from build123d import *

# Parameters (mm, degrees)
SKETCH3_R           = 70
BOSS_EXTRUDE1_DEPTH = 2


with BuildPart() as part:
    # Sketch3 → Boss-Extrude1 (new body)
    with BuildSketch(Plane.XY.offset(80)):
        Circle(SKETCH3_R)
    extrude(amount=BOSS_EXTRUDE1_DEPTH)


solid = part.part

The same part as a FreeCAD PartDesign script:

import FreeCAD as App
import Part
import Sketcher

doc = App.newDocument("Part")
body = doc.addObject("PartDesign::Body", "Body")

# Sketch on XY plane
sketch1 = body.newObject("Sketcher::SketchObject", "Sketch")
sketch1.AttachmentSupport = (doc.getObject("XY_Plane"), [""])
sketch1.MapMode = "FlatFace"
sketch1.AttachmentOffset = App.Placement(App.Vector(0, 0, 80), App.Rotation())
sketch1.addGeometry(Part.Circle(App.Vector(0, 0, 0), App.Vector(0, 0, 1), 70), False)
sketch1.addConstraint([
    Sketcher.Constraint("Coincident", 0, 3, -1, 1),
    Sketcher.Constraint("Diameter", 0, 140.0),
])
pad1 = body.newObject("PartDesign::Pad", "Pad")
pad1.Profile = sketch1
pad1.Length = 2

doc.recompute()
